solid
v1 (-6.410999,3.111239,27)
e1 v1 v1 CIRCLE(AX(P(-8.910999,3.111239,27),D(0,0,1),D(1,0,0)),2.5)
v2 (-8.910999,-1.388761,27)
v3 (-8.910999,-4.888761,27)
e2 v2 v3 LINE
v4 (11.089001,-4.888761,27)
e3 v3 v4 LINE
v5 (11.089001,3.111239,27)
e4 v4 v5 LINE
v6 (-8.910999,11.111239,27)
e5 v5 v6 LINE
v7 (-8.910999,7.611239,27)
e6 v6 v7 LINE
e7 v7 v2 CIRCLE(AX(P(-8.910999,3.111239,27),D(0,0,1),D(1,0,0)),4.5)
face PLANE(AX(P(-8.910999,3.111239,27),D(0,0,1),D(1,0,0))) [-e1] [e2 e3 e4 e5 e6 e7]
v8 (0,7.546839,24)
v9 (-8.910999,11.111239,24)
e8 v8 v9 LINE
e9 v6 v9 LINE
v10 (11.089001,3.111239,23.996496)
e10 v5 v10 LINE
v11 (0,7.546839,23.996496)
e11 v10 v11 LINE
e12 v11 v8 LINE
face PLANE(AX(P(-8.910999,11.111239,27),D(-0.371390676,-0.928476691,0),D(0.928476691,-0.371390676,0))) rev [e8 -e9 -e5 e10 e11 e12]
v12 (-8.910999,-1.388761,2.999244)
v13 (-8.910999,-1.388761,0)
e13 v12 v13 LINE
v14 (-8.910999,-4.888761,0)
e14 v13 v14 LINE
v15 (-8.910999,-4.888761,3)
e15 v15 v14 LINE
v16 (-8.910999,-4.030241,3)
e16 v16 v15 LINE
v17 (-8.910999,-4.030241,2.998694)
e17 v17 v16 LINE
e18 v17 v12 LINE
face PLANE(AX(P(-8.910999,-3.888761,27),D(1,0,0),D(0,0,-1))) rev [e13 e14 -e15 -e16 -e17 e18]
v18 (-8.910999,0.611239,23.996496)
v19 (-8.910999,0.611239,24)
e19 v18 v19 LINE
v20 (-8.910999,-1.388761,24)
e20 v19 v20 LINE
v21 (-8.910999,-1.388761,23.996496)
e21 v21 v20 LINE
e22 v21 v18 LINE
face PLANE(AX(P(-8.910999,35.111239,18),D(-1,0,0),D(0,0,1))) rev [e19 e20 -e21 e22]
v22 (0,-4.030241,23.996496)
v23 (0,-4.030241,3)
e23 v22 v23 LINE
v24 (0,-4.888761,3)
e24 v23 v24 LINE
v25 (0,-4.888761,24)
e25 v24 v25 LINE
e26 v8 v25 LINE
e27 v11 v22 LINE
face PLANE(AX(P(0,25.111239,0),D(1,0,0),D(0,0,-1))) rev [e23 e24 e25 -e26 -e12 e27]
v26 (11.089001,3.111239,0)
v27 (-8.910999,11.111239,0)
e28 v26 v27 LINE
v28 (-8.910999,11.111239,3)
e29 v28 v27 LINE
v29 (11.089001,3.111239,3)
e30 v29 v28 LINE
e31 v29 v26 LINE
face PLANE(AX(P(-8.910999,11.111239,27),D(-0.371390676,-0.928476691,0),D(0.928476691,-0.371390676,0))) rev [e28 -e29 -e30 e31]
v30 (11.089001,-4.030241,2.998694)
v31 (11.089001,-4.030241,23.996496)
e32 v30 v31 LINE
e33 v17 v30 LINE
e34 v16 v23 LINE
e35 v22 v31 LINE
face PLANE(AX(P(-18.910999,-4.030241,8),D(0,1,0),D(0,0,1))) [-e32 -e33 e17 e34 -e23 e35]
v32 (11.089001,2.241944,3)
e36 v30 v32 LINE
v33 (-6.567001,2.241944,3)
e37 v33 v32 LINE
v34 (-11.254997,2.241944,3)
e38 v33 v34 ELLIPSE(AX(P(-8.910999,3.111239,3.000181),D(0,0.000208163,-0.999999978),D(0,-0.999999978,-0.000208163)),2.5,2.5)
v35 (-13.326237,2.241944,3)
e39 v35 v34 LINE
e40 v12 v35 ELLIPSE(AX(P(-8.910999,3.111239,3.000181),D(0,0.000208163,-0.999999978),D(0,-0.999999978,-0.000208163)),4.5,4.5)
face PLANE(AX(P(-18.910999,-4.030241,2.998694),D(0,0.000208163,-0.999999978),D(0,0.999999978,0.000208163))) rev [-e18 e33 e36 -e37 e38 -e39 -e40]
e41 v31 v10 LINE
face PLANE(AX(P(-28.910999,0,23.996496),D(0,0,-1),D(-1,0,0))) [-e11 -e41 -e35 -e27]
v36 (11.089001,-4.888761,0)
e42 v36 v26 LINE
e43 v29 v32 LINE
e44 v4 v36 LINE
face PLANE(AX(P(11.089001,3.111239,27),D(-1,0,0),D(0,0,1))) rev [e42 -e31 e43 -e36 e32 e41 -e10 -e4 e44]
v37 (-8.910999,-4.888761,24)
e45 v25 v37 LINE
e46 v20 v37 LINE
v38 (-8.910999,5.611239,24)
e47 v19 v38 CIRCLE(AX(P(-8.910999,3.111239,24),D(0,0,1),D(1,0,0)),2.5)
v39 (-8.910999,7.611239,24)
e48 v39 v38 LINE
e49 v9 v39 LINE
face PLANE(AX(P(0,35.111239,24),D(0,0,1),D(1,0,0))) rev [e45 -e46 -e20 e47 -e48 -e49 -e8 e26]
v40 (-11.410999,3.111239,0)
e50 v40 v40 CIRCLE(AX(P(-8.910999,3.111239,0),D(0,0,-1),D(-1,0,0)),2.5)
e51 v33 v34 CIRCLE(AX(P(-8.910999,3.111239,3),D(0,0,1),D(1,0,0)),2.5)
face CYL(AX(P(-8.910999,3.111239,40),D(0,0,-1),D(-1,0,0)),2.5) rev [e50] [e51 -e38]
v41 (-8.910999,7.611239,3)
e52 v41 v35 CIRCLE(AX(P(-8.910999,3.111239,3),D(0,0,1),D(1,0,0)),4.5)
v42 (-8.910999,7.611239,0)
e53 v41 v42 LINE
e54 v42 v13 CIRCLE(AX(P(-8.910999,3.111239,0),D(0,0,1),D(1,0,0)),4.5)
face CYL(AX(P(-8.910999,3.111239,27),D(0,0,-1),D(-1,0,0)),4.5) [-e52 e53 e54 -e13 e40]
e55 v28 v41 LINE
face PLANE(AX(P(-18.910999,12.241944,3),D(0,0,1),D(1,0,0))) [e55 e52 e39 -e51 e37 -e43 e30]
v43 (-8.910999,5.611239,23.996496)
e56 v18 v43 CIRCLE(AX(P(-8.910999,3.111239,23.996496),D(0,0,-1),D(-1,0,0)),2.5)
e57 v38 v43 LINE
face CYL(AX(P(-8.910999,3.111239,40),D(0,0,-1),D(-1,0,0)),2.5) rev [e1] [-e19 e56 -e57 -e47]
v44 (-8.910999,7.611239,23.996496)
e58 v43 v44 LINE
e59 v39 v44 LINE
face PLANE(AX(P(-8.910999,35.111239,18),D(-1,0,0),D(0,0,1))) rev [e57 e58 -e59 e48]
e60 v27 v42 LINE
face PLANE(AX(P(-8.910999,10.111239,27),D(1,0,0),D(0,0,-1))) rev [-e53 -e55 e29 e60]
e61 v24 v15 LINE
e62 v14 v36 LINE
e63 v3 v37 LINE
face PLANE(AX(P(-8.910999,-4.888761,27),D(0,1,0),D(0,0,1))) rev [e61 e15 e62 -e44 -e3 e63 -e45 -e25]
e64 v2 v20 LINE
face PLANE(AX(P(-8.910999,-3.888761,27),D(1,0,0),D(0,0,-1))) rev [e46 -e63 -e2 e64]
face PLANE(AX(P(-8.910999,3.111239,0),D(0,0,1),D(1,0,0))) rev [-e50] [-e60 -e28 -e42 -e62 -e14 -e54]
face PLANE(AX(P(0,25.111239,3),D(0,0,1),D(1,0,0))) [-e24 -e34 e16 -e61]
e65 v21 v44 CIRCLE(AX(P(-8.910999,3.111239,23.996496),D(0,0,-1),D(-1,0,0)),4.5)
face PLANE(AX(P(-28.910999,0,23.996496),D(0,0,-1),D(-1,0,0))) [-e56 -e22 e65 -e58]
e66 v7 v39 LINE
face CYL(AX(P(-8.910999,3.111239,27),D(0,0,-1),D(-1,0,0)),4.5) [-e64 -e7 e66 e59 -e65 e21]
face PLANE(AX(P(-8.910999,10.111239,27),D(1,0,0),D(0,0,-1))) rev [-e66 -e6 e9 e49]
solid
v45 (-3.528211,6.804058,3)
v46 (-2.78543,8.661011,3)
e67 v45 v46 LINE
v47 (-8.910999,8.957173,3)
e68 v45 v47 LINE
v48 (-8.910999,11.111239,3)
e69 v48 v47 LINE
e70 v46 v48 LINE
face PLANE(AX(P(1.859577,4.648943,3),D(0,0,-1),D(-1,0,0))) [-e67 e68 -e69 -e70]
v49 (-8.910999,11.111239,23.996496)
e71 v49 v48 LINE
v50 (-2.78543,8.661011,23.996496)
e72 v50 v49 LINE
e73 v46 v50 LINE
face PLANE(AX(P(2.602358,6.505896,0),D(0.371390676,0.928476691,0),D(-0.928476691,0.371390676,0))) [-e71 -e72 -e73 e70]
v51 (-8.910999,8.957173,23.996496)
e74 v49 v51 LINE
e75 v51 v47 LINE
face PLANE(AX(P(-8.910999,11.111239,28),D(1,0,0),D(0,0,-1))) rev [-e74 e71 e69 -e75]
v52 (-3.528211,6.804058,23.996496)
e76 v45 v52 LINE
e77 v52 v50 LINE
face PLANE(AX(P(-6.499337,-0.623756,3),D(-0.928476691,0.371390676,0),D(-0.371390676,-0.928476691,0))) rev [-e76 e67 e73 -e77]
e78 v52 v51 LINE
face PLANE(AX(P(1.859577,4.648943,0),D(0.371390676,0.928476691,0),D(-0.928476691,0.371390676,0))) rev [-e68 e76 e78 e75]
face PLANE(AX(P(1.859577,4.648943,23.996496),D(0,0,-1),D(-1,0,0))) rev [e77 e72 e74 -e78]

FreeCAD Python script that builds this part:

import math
import FreeCAD as App
import Part
import Sketcher
from FreeCAD import Vector
Q = App.Units.Quantity


def add_polygon(sketch, points):
    """Adds a closed chain of lines whose ends are joined by coincident constraints."""
    first, n = sketch.GeometryCount, len(points)
    for a, b in zip(points, points[1:] + points[:1]):
        sketch.addGeometry(Part.LineSegment(App.Vector(*a, 0), App.Vector(*b, 0)), False)
    for i in range(n):
        sketch.addConstraint(Sketcher.Constraint("Coincident", first + i, 2, first + (i + 1) % n, 1))

doc = App.newDocument("Part")
body = doc.addObject("PartDesign::Body", "Body")

# Sketch on XY plane
sketch1 = body.newObject("Sketcher::SketchObject", "Sketch")
sketch1.AttachmentSupport = (doc.getObject("XY_Plane"), [""])
sketch1.MapMode = "FlatFace"
sketch1.addGeometry(Part.LineSegment(Vector(11.1, 3.1, 0), Vector(-8.9, 11.1, 0)), False)
sketch1.addGeometry(Part.LineSegment(Vector(-8.9, 11.1, 0), Vector(-8.9, 7.6, 0)), False)
sketch1.addGeometry(Part.ArcOfCircle(Part.Circle(Vector(-8.9, 3.1, 0), Vector(0, 0, 1), 4.5), math.radians(90), math.radians(270)), False)
sketch1.addGeometry(Part.LineSegment(Vector(-8.9, -1.4, 0), Vector(-8.9, -4.9, 0)), False)
sketch1.addGeometry(Part.LineSegment(Vector(-8.9, -4.9, 0), Vector(11.1, -4.9, 0)), False)
sketch1.addGeometry(Part.LineSegment(Vector(11.1, -4.9, 0), Vector(11.1, 3.1, 0)), False)
sketch1.addConstraint(Sketcher.Constraint("Coincident", 0, 2, 1, 1))
sketch1.addConstraint(Sketcher.Constraint("Coincident", 1, 2, 2, 1))
sketch1.addConstraint(Sketcher.Constraint("Coincident", 2, 2, 3, 1))
sketch1.addConstraint(Sketcher.Constraint("Coincident", 3, 2, 4, 1))
sketch1.addConstraint(Sketcher.Constraint("Coincident", 4, 2, 5, 1))
sketch1.addConstraint(Sketcher.Constraint("Coincident", 5, 2, 0, 1))
sketch1.addConstraint(Sketcher.Constraint("Vertical", 1))
sketch1.addConstraint(Sketcher.Constraint("Vertical", 3))
sketch1.addConstraint(Sketcher.Constraint("Horizontal", 4))
sketch1.addConstraint(Sketcher.Constraint("Vertical", 5))
sketch1.addConstraint(Sketcher.Constraint("Horizontal", 2, 3, 5, 2))
sketch1.addConstraint(Sketcher.Constraint("Vertical", 2, 3, 0, 2))
sketch1.addConstraint(Sketcher.Constraint("Vertical", 1, 2, 2, 2))
sketch1.addConstraint(Sketcher.Constraint("Equal", 1, 3))
sketch1.addConstraint(Sketcher.Constraint("Radius", 2, Q("4.5 mm")))
sketch1.addConstraint(Sketcher.Constraint("DistanceX", 4, 1, 4, 2, Q("20 mm")))
sketch1.addConstraint(Sketcher.Constraint("DistanceY", 5, 1, 5, 2, Q("8 mm")))
sketch1.addConstraint(Sketcher.Constraint("DistanceX", 2, 3, -1, 1, Q("8.910999 mm")))
sketch1.addConstraint(Sketcher.Constraint("DistanceY", -1, 1, 2, 3, Q("3.111239 mm")))
pad1 = body.newObject("PartDesign::Pad", "Pad")
pad1.Profile = sketch1
pad1.Length = 27

# Sketch on YZ plane
sketch2 = body.newObject("Sketcher::SketchObject", "Sketch001")
sketch2.AttachmentSupport = (doc.getObject("YZ_Plane"), [""])
sketch2.MapMode = "FlatFace"
sketch2.AttachmentOffset = App.Placement(Vector(0, 0, 11.089001), App.Rotation())
add_polygon(sketch2, [(12, 18), (-4, 18), (-4, 8), (2, 8), (2, 3), (12, 3)])  # lines 0-5
sketch2.addConstraint(Sketcher.Constraint("Horizontal", 0))
sketch2.addConstraint(Sketcher.Constraint("Vertical", 1))
sketch2.addConstraint(Sketcher.Constraint("Horizontal", 2))
sketch2.addConstraint(Sketcher.Constraint("Vertical", 3))
sketch2.addConstraint(Sketcher.Constraint("Horizontal", 4))
sketch2.addConstraint(Sketcher.Constraint("Vertical", 5))
sketch2.addConstraint(Sketcher.Constraint("Equal", 4, 1))
sketch2.addConstraint(Sketcher.Constraint("DistanceX", 4, 1, 4, 2, Q("10 mm")))
sketch2.addConstraint(Sketcher.Constraint("DistanceY", 3, 2, 3, 1, Q("5 mm")))
sketch2.addConstraint(Sketcher.Constraint("DistanceY", -1, 1, 0, 2, Q("18 mm")))
sketch2.addConstraint(Sketcher.Constraint("DistanceX", 0, 2, 0, 1, Q("16.272185 mm")))
sketch2.addConstraint(Sketcher.Constraint("DistanceX", 0, 2, -1, 1, Q("4.030241 mm")))
pocket1 = body.newObject("PartDesign::Pocket", "Pocket")
pocket1.Profile = sketch2
pocket1.Length = 30

# Sketch on YZ plane
sketch3 = body.newObject("Sketcher::SketchObject", "Sketch002")
sketch3.AttachmentSupport = (doc.getObject("YZ_Plane"), [""])
sketch3.MapMode = "FlatFace"
sketch3.AttachmentOffset = App.Placement(Vector(0, 0, 11.089001), App.Rotation())
add_polygon(sketch3, [(-4, 8), (-4, 3), (2, 3), (2, 8)])  # lines 0-3
sketch3.addConstraint(Sketcher.Constraint("Vertical", 0))
sketch3.addConstraint(Sketcher.Constraint("Vertical", 2))
sketch3.addConstraint(Sketcher.Constraint("Horizontal", 3))
sketch3.addConstraint(Sketcher.Constraint("DistanceY", 2, 1, 2, 2, Q("5 mm")))
sketch3.addConstraint(Sketcher.Constraint("DistanceY", -1, 1, 1, 2, Q("3 mm")))
sketch3.addConstraint(Sketcher.Constraint("DistanceX", 3, 2, 3, 1, Q("6.272185 mm")))
sketch3.addConstraint(Sketcher.Constraint("DistanceY", 0, 2, 0, 1, Q("5.001306 mm")))
sketch3.addConstraint(Sketcher.Constraint("DistanceX", 0, 2, -1, 1, Q("4.030241 mm")))
pocket2 = body.newObject("PartDesign::Pocket", "Pocket001")
pocket2.Profile = sketch3
pocket2.Length = 30

# Sketch on XZ plane
sketch4 = body.newObject("Sketcher::SketchObject", "Sketch003")
sketch4.AttachmentSupport = (doc.getObject("XZ_Plane"), [""])
sketch4.MapMode = "FlatFace"
sketch4.AttachmentOffset = App.Placement(Vector(0, 0, 4.888761), App.Rotation())
add_polygon(sketch4, [(0, 3), (0, 18), (-9, 18), (-9, 3)])  # lines 0-3
sketch4.addConstraint(Sketcher.Constraint("Vertical", 0))
sketch4.addConstraint(Sketcher.Constraint("Horizontal", 1))
sketch4.addConstraint(Sketcher.Constraint("Vertical", 2))
sketch4.addConstraint(Sketcher.Constraint("Horizontal", 3))
sketch4.addConstraint(Sketcher.Constraint("PointOnObject", 0, 2, -2))
sketch4.addConstraint(Sketcher.Constraint("DistanceY", 0, 1, 0, 2, Q("15 mm")))
sketch4.addConstraint(Sketcher.Constraint("DistanceY", -1, 1, 0, 2, Q("18 mm")))
sketch4.addConstraint(Sketcher.Constraint("DistanceX", 1, 2, 1, 1, Q("8.910999 mm")))
pocket3 = body.newObject("PartDesign::Pocket", "Pocket002")
pocket3.Profile = sketch4
pocket3.Length = 30

# Sketch on YZ plane
sketch5 = body.newObject("Sketcher::SketchObject", "Sketch004")
sketch5.AttachmentSupport = (doc.getObject("YZ_Plane"), [""])
sketch5.MapMode = "FlatFace"
sketch5.AttachmentOffset = App.Placement(Vector(0, 0, 11.089001), App.Rotation())
add_polygon(sketch5, [(3, 24), (-4, 24), (-4, 18), (3, 18)])  # lines 0-3
sketch5.addConstraint(Sketcher.Constraint("Horizontal", 0))
sketch5.addConstraint(Sketcher.Constraint("Vertical", 1))
sketch5.addConstraint(Sketcher.Constraint("Horizontal", 2))
sketch5.addConstraint(Sketcher.Constraint("Vertical", 3))
sketch5.addConstraint(Sketcher.Constraint("DistanceY", -1, 1, 1, 2, Q("18 mm")))
sketch5.addConstraint(Sketcher.Constraint("DistanceX", 0, 2, 0, 1, Q("7.14148 mm")))
sketch5.addConstraint(Sketcher.Constraint("DistanceY", 1, 2, 1, 1, Q("5.996496 mm")))
sketch5.addConstraint(Sketcher.Constraint("DistanceX", 0, 2, -1, 1, Q("4.030241 mm")))
pocket4 = body.newObject("PartDesign::Pocket", "Pocket003")
pocket4.Profile = sketch5
pocket4.Length = 40

# Sketch on YZ plane
sketch6 = body.newObject("Sketcher::SketchObject", "Sketch005")
sketch6.AttachmentSupport = (doc.getObject("YZ_Plane"), [""])
sketch6.MapMode = "FlatFace"
sketch6.AttachmentOffset = App.Placement(Vector(0, 0, 21.089001), App.Rotation())
add_polygon(sketch6, [(13, 24), (-4, 24), (-4, 18), (13, 18)])  # lines 0-3
sketch6.addConstraint(Sketcher.Constraint("Horizontal", 0))
sketch6.addConstraint(Sketcher.Constraint("Vertical", 1))
sketch6.addConstraint(Sketcher.Constraint("Horizontal", 2))
sketch6.addConstraint(Sketcher.Constraint("Vertical", 3))
sketch6.addConstraint(Sketcher.Constraint("DistanceY", 1, 2, 1, 1, Q("6 mm")))
sketch6.addConstraint(Sketcher.Constraint("DistanceX", 0, 2, 0, 1, Q("16.935376 mm")))
sketch6.addConstraint(Sketcher.Constraint("DistanceX", 0, 2, -1, 1, Q("4.030241 mm")))
sketch6.addConstraint(Sketcher.Constraint("DistanceY", -1, 1, 0, 2, Q("23.996496 mm")))
pocket5 = body.newObject("PartDesign::Pocket", "Pocket004")
pocket5.Profile = sketch6
pocket5.Length = 40

# Sketch on XZ plane
sketch7 = body.newObject("Sketcher::SketchObject", "Sketch006")
sketch7.AttachmentSupport = (doc.getObject("XZ_Plane"), [""])
sketch7.MapMode = "FlatFace"
sketch7.AttachmentOffset = App.Placement(Vector(0, 0, 4.888761), App.Rotation())
add_polygon(sketch7, [(-9, 24), (-9, 18), (0, 18), (0, 24)])  # lines 0-3
sketch7.addConstraint(Sketcher.Constraint("Vertical", 0))
sketch7.addConstraint(Sketcher.Constraint("Horizontal", 1))
sketch7.addConstraint(Sketcher.Constraint("Vertical", 2))
sketch7.addConstraint(Sketcher.Constraint("Horizontal", 3))
sketch7.addConstraint(Sketcher.Constraint("PointOnObject", 1, 2, -2))
sketch7.addConstraint(Sketcher.Constraint("DistanceY", 0, 2, 0, 1, Q("6 mm")))
sketch7.addConstraint(Sketcher.Constraint("DistanceY", -1, 1, 0, 2, Q("18 mm")))
sketch7.addConstraint(Sketcher.Constraint("DistanceX", 1, 1, 1, 2, Q("8.910999 mm")))
pocket6 = body.newObject("PartDesign::Pocket", "Pocket005")
pocket6.Profile = sketch7
pocket6.Length = 40

# Sketch on XY plane
sketch8 = body.newObject("Sketcher::SketchObject", "Sketch007")
sketch8.AttachmentSupport = (doc.getObject("XY_Plane"), [""])
sketch8.MapMode = "FlatFace"
sketch8.addGeometry(Part.Circle(Vector(-8.9, 3.1, 0), Vector(0, 0, 1), 2.5), False)
sketch8.addConstraint(Sketcher.Constraint("Diameter", 0, Q("5 mm")))
sketch8.addConstraint(Sketcher.Constraint("DistanceX", 0, 3, -1, 1, Q("8.910999 mm")))
sketch8.addConstraint(Sketcher.Constraint("DistanceY", -1, 1, 0, 3, Q("3.111239 mm")))
pocket7 = body.newObject("PartDesign::Pocket", "Pocket006")
pocket7.Profile = sketch8
pocket7.Length = 40
pocket7.Reversed = True
body2 = doc.addObject("PartDesign::Body", "Body001")

# Sketch on an angled plane
sketch9 = body2.newObject("Sketcher::SketchObject", "Sketch008")
sketch9.Placement = App.Placement(Vector(2.602358, 6.505896, 0), App.Rotation(Vector(0.928476691, -0.371390676, 0), Vector(0, 0, -1), Vector(0.371390676, 0.928476691, 0), "ZXY"))
add_polygon(sketch9, [(-12, -3), (-12, -24), (-3, -24), (-3, -3)])  # lines 0-3
sketch9.addConstraint(Sketcher.Constraint("Vertical", 0))
sketch9.addConstraint(Sketcher.Constraint("Horizontal", 1))
sketch9.addConstraint(Sketcher.Constraint("Vertical", 2))
sketch9.addConstraint(Sketcher.Constraint("Horizontal", 3))
sketch9.addConstraint(Sketcher.Constraint("DistanceY", 2, 2, -1, 1, Q("3 mm")))
sketch9.addConstraint(Sketcher.Constraint("DistanceX", 1, 1, 1, 2, Q("9.597439 mm")))
sketch9.addConstraint(Sketcher.Constraint("DistanceY", 0, 2, 0, 1, Q("20.996496 mm")))
sketch9.addConstraint(Sketcher.Constraint("DistanceX", 0, 2, -1, 1, Q("12.400265 mm")))
pad2 = body2.newObject("PartDesign::Pad", "Pad001")
pad2.Profile = sketch9
pad2.Length = 2
pad2.Reversed = True

# Sketch on XY plane
sketch10 = body2.newObject("Sketcher::SketchObject", "Sketch009")
sketch10.AttachmentSupport = (doc.getObject("XY_Plane001"), [""])
sketch10.MapMode = "FlatFace"
sketch10.AttachmentOffset = App.Placement(Vector(0, 0, 3), App.Rotation())
add_polygon(sketch10, [(-8.9, 11.1), (-8.9, 9), (-9.7, 9.3)])  # lines 0-2
sketch10.addConstraint(Sketcher.Constraint("Vertical", 0))
sketch10.addConstraint(Sketcher.Constraint("Perpendicular", 1, 2))
sketch10.addConstraint(Sketcher.Constraint("Distance", 2, Q("2 mm")))
sketch10.addConstraint(Sketcher.Constraint("Distance", 1, Q("0.8 mm")))
sketch10.addConstraint(Sketcher.Constraint("DistanceX", 0, 2, -1, 1, Q("8.910999 mm")))
sketch10.addConstraint(Sketcher.Constraint("DistanceY", -1, 1, 2, 2, Q("11.111239 mm")))
pocket8 = body2.newObject("PartDesign::Pocket", "Pocket007")
pocket8.Profile = sketch10
pocket8.Length = 25
pocket8.Reversed = True

# Sketch on an angled plane
sketch11 = body2.newObject("Sketcher::SketchObject", "Sketch010")
sketch11.Placement = App.Placement(Vector(2.602358, 6.505896, 0), App.Rotation(Vector(0.928476691, -0.371390676, 0), Vector(0, 0, -1), Vector(0.371390676, 0.928476691, 0), "ZXY"))
add_polygon(sketch11, [(-5.8, -3), (-5.8, -24), (-2.8, -24), (-2.8, -3)])  # lines 0-3
sketch11.addConstraint(Sketcher.Constraint("Vertical", 0))
sketch11.addConstraint(Sketcher.Constraint("Horizontal", 1))
sketch11.addConstraint(Sketcher.Constraint("Vertical", 2))
sketch11.addConstraint(Sketcher.Constraint("Horizontal", 3))
sketch11.addConstraint(Sketcher.Constraint("DistanceX", 1, 1, 1, 2, Q("3 mm")))
sketch11.addConstraint(Sketcher.Constraint("DistanceY", 2, 2, -1, 1, Q("3 mm")))
sketch11.addConstraint(Sketcher.Constraint("DistanceY", 0, 2, 0, 1, Q("20.996496 mm")))
sketch11.addConstraint(Sketcher.Constraint("DistanceX", 0, 2, -1, 1, Q("5.802826 mm")))
pocket9 = body2.newObject("PartDesign::Pocket", "Pocket008")
pocket9.Profile = sketch11
pocket9.Length = 10

doc.recompute()
